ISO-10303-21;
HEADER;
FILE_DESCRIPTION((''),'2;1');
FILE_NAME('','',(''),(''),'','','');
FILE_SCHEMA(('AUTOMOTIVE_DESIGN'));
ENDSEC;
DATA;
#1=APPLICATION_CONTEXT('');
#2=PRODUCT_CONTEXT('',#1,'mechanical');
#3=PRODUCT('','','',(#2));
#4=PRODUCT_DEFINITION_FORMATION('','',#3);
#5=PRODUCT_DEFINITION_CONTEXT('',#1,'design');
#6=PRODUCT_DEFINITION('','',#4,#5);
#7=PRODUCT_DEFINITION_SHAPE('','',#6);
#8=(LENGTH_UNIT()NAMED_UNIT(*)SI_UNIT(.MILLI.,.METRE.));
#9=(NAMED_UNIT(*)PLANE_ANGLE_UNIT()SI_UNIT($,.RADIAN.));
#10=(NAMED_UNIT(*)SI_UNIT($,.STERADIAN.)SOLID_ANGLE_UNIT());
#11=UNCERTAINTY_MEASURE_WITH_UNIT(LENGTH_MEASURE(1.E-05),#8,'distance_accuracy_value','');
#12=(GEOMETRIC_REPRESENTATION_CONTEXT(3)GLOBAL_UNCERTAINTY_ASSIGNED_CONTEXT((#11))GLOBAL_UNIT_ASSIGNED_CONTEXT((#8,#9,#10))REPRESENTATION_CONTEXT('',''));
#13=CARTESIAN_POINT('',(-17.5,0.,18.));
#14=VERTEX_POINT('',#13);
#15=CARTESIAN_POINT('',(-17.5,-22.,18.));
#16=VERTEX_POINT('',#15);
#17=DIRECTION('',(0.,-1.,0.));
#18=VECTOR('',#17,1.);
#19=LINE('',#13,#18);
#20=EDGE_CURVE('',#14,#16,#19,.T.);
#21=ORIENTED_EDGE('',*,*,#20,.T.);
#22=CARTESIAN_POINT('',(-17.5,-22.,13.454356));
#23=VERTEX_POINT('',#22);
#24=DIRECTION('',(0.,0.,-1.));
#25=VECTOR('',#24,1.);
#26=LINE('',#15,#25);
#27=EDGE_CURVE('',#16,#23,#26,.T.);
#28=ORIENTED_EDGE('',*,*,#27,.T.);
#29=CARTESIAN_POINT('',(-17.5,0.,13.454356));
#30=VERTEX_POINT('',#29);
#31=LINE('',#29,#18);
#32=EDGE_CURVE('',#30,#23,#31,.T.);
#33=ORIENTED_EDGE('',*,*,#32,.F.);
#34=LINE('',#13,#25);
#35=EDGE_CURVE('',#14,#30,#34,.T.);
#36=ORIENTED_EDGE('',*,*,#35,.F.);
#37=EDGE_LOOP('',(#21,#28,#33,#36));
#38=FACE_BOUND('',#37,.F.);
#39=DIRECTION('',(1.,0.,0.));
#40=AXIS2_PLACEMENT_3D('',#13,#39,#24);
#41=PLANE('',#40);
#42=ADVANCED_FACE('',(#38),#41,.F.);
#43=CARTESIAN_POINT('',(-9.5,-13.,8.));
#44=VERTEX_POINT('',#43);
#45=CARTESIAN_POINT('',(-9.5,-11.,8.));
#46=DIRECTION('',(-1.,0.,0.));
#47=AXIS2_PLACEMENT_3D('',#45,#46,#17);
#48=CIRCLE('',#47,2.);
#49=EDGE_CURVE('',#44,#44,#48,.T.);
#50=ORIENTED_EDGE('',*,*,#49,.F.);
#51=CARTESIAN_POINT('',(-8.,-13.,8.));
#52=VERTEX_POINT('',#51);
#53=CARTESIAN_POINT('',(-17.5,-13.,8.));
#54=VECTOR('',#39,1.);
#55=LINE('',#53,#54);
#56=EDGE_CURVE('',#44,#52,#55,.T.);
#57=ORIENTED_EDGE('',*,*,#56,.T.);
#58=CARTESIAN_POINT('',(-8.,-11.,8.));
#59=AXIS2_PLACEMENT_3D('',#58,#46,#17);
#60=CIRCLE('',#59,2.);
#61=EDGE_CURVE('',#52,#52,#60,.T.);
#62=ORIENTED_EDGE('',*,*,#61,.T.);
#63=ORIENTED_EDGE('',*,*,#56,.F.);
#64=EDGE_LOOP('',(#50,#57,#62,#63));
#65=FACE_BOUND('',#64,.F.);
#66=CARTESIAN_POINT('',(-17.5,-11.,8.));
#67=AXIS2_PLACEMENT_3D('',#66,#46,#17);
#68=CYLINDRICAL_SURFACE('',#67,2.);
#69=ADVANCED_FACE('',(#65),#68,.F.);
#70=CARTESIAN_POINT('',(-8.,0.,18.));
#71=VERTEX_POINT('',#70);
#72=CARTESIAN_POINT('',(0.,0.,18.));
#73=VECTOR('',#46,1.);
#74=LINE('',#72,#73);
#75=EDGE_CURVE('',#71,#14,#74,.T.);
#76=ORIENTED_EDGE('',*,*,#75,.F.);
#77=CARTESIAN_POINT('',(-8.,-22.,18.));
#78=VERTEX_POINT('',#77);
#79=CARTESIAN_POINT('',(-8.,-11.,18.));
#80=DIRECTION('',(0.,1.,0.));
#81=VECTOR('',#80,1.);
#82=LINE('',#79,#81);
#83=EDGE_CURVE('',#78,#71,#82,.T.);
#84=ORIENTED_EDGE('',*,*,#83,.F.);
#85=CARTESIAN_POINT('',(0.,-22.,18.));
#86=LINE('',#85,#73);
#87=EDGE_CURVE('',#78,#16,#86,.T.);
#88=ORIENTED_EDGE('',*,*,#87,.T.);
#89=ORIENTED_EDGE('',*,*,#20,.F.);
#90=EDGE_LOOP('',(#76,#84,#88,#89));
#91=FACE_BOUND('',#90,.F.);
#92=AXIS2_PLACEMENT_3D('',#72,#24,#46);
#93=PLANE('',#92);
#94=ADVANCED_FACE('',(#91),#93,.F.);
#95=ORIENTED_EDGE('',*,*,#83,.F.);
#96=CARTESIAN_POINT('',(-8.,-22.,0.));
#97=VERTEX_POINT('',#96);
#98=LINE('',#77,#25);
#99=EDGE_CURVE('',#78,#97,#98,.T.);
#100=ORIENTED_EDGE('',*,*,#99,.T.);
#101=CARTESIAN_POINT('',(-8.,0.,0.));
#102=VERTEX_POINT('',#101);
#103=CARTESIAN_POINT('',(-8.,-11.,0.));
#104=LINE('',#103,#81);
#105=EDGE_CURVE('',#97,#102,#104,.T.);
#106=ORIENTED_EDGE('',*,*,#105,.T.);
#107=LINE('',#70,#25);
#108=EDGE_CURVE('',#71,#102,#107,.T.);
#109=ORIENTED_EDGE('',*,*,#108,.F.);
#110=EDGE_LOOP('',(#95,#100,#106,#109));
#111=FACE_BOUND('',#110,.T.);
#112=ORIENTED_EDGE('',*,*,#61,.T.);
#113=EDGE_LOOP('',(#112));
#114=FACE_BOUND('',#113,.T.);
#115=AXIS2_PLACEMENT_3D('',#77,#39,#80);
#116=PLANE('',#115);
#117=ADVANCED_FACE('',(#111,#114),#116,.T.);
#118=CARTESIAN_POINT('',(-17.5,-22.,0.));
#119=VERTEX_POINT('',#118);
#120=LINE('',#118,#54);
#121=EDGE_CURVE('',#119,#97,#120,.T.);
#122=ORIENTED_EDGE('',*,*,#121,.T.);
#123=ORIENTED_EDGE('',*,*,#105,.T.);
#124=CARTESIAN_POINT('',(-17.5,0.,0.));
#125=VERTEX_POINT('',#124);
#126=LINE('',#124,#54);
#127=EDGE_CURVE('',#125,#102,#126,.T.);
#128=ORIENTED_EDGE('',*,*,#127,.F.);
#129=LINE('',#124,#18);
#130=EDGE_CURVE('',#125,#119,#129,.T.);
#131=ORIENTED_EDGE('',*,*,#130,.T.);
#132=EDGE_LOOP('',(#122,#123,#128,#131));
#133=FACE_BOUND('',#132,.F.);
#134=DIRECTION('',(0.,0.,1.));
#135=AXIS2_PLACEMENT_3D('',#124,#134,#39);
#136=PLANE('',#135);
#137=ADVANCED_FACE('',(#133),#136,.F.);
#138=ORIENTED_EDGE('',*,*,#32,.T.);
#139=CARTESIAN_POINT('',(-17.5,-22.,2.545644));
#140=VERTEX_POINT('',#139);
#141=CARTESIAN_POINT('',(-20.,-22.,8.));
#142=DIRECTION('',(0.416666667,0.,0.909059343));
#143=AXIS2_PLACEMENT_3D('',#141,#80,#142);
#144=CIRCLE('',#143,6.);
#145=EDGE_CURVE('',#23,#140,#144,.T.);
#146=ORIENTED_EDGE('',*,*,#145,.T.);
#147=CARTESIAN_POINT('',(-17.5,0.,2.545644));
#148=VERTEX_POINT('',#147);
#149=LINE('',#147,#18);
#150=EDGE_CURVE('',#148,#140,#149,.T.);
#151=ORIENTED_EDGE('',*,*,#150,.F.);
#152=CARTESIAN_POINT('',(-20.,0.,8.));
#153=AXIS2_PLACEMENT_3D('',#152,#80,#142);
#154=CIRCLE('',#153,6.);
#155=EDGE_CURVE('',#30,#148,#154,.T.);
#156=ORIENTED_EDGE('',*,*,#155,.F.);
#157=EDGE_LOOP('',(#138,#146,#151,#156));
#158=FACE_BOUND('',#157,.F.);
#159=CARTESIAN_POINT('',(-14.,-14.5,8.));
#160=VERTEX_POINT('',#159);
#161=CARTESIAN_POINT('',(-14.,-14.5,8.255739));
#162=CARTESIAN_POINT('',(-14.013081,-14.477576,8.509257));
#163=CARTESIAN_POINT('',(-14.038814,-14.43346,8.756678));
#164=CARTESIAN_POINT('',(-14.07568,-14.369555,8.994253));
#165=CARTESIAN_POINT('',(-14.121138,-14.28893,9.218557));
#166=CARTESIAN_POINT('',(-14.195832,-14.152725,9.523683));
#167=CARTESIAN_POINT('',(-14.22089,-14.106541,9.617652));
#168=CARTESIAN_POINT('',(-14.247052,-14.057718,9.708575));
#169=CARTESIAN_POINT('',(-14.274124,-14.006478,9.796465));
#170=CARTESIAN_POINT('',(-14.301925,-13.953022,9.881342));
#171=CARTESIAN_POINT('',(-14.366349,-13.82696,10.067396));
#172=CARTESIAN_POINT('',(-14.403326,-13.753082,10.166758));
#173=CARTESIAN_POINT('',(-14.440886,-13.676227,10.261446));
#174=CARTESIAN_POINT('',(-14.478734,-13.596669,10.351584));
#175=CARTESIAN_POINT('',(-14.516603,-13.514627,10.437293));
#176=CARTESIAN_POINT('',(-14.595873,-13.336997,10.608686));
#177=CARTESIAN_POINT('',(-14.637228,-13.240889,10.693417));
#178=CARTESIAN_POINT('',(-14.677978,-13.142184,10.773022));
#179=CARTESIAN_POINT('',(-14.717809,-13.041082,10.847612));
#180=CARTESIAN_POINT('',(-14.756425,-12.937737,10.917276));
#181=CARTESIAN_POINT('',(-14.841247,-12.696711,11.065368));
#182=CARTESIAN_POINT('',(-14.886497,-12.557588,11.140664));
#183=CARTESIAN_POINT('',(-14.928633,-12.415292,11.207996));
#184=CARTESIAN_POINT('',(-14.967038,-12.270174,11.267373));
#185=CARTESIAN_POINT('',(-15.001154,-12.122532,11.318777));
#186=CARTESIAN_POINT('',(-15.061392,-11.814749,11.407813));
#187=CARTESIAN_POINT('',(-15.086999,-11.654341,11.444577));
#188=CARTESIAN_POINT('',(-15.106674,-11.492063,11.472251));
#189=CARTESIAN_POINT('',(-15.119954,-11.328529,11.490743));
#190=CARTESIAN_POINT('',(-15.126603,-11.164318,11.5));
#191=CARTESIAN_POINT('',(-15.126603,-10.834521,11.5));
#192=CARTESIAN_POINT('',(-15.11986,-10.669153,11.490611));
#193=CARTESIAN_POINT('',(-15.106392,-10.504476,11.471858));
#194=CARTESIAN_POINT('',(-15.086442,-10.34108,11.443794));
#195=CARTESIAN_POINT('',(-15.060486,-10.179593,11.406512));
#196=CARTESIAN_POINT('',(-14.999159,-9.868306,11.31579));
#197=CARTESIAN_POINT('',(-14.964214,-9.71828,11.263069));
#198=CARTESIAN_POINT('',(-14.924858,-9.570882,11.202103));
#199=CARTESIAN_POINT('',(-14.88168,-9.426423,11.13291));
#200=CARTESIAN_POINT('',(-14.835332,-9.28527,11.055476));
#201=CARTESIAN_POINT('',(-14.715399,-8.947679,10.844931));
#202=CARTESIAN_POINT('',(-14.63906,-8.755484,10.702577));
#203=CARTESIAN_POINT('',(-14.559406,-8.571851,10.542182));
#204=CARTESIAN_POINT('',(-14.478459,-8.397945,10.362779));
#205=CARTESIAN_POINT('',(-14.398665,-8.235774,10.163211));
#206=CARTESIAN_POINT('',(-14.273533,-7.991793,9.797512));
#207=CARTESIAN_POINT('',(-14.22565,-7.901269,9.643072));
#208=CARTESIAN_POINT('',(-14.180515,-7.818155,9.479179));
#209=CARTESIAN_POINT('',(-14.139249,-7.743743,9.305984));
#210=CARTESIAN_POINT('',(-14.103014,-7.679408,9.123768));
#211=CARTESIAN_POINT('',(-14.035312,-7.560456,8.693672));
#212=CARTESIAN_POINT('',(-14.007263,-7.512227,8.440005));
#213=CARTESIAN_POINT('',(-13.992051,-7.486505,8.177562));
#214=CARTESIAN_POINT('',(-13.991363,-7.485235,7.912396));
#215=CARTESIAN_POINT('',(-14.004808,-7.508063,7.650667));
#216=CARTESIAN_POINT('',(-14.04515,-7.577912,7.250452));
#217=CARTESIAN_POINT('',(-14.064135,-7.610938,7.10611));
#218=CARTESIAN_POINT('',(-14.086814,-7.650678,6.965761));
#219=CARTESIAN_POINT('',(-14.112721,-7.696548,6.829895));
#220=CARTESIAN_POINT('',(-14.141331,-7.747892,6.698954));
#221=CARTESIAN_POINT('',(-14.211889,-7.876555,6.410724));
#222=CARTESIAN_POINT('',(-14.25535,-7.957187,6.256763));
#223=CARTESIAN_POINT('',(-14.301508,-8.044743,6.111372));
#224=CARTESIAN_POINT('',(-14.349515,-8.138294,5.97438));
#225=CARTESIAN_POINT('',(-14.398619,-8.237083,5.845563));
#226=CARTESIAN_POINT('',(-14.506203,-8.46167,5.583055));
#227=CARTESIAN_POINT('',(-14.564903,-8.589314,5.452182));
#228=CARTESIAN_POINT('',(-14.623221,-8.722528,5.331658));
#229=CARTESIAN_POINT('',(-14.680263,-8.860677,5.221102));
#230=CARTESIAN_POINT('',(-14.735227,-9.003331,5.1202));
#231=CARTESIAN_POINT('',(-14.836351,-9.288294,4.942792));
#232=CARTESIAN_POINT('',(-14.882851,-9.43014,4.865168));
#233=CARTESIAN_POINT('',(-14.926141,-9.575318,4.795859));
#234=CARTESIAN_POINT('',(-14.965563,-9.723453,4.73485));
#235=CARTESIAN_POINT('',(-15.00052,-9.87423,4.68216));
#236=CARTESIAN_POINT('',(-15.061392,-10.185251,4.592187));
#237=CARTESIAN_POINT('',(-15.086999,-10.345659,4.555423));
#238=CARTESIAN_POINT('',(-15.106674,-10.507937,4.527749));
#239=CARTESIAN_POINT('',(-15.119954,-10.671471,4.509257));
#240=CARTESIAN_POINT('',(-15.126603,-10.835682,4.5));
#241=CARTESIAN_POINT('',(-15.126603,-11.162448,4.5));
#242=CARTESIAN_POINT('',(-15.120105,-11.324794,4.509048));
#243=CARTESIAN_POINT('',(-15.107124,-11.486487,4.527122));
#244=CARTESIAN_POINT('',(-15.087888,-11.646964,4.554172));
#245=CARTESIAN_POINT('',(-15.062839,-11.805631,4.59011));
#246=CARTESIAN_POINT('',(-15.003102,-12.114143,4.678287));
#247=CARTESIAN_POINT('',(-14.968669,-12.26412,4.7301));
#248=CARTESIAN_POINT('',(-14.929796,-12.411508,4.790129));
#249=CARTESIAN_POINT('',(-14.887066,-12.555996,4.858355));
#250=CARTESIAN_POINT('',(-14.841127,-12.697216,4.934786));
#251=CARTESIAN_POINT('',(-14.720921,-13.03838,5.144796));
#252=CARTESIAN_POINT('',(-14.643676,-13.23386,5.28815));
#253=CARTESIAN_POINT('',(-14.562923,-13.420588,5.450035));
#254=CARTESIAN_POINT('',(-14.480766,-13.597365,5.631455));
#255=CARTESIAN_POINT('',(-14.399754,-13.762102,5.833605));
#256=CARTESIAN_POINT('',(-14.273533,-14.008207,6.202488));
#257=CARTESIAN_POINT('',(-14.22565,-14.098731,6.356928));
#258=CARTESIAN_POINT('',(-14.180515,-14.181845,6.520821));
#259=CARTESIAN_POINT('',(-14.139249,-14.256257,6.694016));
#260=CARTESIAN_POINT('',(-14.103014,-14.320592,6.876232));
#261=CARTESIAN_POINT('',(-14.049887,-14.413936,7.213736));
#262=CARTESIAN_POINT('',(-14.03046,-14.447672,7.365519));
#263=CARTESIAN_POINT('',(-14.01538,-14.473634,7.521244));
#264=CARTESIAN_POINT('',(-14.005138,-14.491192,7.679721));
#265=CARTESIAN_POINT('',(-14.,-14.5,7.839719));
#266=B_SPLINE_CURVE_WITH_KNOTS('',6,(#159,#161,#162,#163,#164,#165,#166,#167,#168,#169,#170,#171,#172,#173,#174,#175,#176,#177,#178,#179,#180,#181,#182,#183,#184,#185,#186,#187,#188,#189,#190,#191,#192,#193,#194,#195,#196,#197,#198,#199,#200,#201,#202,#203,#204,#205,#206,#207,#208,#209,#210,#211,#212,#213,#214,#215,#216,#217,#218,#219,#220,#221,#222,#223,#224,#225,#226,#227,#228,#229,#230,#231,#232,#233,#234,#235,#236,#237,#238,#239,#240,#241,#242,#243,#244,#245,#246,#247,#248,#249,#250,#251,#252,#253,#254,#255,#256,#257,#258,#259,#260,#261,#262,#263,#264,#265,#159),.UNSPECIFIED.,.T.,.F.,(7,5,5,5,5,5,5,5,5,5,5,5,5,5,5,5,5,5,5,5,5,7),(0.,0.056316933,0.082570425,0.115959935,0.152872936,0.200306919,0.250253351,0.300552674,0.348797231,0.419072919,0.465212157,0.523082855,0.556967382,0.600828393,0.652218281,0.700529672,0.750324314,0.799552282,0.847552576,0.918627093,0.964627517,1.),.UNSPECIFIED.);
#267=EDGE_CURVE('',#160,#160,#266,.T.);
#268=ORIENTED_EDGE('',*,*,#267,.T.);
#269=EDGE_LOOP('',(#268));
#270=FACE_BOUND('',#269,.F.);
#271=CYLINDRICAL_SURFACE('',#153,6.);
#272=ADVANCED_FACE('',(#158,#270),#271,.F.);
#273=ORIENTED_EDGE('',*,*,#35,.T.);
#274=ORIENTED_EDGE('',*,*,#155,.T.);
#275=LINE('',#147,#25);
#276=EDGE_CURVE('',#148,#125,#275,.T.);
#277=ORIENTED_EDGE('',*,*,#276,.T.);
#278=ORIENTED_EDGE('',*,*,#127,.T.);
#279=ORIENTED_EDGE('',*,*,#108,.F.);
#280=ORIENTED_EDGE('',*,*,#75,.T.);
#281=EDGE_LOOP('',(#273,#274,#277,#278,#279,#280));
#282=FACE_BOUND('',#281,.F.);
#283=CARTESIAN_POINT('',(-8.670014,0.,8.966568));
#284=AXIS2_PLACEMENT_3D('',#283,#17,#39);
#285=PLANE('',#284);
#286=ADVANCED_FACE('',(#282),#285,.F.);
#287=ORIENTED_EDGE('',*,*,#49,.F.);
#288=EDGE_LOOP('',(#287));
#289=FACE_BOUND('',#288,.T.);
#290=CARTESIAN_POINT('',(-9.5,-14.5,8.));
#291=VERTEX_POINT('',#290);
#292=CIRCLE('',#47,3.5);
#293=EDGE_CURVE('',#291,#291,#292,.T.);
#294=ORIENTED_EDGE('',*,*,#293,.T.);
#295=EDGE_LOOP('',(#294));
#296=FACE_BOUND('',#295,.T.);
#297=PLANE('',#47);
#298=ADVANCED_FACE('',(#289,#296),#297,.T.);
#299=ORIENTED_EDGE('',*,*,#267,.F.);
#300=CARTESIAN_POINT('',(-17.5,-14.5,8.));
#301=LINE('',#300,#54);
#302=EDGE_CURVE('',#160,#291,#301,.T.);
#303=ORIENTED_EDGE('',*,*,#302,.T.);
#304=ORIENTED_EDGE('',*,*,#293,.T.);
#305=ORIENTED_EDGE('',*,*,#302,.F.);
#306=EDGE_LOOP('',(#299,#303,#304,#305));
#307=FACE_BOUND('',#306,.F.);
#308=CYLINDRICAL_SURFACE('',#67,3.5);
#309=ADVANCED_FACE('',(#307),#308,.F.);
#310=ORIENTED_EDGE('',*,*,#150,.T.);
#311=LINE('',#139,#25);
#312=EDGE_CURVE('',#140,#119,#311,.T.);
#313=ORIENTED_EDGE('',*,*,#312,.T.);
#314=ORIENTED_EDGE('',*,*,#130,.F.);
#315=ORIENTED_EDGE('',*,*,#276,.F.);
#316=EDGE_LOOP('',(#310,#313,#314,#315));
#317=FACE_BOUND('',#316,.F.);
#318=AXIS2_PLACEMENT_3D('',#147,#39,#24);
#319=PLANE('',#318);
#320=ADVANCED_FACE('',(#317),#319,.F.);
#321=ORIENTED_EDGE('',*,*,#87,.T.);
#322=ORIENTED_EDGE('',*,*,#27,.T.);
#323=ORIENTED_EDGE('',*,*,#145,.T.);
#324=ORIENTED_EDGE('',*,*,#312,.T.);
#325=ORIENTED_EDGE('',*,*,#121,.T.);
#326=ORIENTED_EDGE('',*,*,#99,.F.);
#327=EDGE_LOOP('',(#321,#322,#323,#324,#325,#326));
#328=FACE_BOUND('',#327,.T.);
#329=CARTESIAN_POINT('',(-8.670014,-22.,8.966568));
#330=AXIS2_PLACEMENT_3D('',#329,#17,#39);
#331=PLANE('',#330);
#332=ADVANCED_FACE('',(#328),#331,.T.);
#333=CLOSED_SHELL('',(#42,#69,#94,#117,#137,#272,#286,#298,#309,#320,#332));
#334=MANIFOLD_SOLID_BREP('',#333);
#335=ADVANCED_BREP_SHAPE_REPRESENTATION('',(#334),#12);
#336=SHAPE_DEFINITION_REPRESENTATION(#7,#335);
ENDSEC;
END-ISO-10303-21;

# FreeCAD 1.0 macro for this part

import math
import FreeCAD as App
import Part
import Sketcher
from FreeCAD import Vector
Q = App.Units.Quantity

doc = App.newDocument("Part")
body = doc.addObject("PartDesign::Body", "Body")

sketch1 = body.newObject("Sketcher::SketchObject", "Sketch")
sketch1.AttachmentSupport = (doc.getObject("XZ_Plane"), [""])
sketch1.MapMode = "FlatFace"
sketch1.addGeometry([
    Part.LineSegment(Vector(0, 18, 0), Vector(-17.5, 18, 0)),
    Part.LineSegment(Vector(-17.5, 18, 0), Vector(-17.5, 13.5, 0)),
    Part.ArcOfCircle(Part.Circle(Vector(-20, 8, 0), Vector(0, 0, 1), 6), math.radians(-65), math.radians(65)),
    Part.LineSegment(Vector(-17.5, 2.5, 0), Vector(-17.5, 0, 0)),
    Part.LineSegment(Vector(-17.5, 0, 0), Vector(0, 0, 0)),
    Part.LineSegment(Vector(0, 0, 0), Vector(0, 18, 0)),
], False)
sketch1.addConstraint([
    Sketcher.Constraint("Coincident", 0, 2, 1, 1),
    Sketcher.Constraint("Coincident", 1, 2, 2, 2),
    Sketcher.Constraint("Coincident", 2, 1, 3, 1),
    Sketcher.Constraint("Coincident", 3, 2, 4, 1),
    Sketcher.Constraint("Coincident", 4, 2, 5, 1),
    Sketcher.Constraint("Coincident", 5, 2, 0, 1),
    Sketcher.Constraint("Horizontal", 0),
    Sketcher.Constraint("Vertical", 1),
    Sketcher.Constraint("Vertical", 3),
    Sketcher.Constraint("Horizontal", 4),
    Sketcher.Constraint("Vertical", 5),
    Sketcher.Constraint("Coincident", 4, 2, -1, 1),
    Sketcher.Constraint("Vertical", 1, 2, 2, 1),
    Sketcher.Constraint("Radius", 2, Q("6 mm")),
    Sketcher.Constraint("DistanceY", 5, 1, 5, 2, Q("18 mm")),
    Sketcher.Constraint("DistanceX", 0, 2, 0, 1, Q("17.5 mm")),
    Sketcher.Constraint("DistanceX", 2, 3, -1, 1, Q("20 mm")),
    Sketcher.Constraint("DistanceY", -1, 1, 2, 3, Q("8 mm")),
])
pad1 = body.newObject("PartDesign::Pad", "Pad")
pad1.Profile = sketch1
pad1.Length = 22

sketch2 = body.newObject("Sketcher::SketchObject", "Sketch001")
sketch2.AttachmentSupport = (doc.getObject("YZ_Plane"), [""])
sketch2.MapMode = "FlatFace"
sketch2.AttachmentOffset = App.Placement(Vector(0, 0, -17.5), App.Rotation())
sketch2.addGeometry(Part.Circle(Vector(-11, 8, 0), Vector(0, 0, 1), 2), False)
sketch2.addConstraint([
    Sketcher.Constraint("Diameter", 0, Q("4 mm")),
    Sketcher.Constraint("DistanceX", 0, 3, -1, 1, Q("11 mm")),
    Sketcher.Constraint("DistanceY", -1, 1, 0, 3, Q("8 mm")),
])
pocket1 = body.newObject("PartDesign::Pocket", "Pocket")
pocket1.Profile = sketch2
pocket1.Length = 25
pocket1.Reversed = True

sketch3 = body.newObject("Sketcher::SketchObject", "Sketch002")
sketch3.AttachmentSupport = (doc.getObject("YZ_Plane"), [""])
sketch3.MapMode = "FlatFace"
sketch3.AttachmentOffset = App.Placement(Vector(0, 0, -17.5), App.Rotation())
sketch3.addGeometry(Part.Circle(Vector(-11, 8, 0), Vector(0, 0, 1), 3.5), False)
sketch3.addConstraint([
    Sketcher.Constraint("Diameter", 0, Q("7 mm")),
    Sketcher.Constraint("DistanceX", 0, 3, -1, 1, Q("11 mm")),
    Sketcher.Constraint("DistanceY", -1, 1, 0, 3, Q("8 mm")),
])
pocket2 = body.newObject("PartDesign::Pocket", "Pocket001")
pocket2.Profile = sketch3
pocket2.Length = 8
pocket2.Reversed = True

sketch4 = body.newObject("Sketcher::SketchObject", "Sketch003")
sketch4.AttachmentSupport = (doc.getObject("XY_Plane"), [""])
sketch4.MapMode = "FlatFace"
sketch4.AttachmentOffset = App.Placement(Vector(0, 0, 18), App.Rotation())
sketch4.addGeometry([
    Part.LineSegment(Vector(-8, 0, 0), Vector(-8, -22, 0)),
    Part.LineSegment(Vector(-8, -22, 0), Vector(0, -22, 0)),
    Part.LineSegment(Vector(0, -22, 0), Vector(0, 0, 0)),
    Part.LineSegment(Vector(0, 0, 0), Vector(-8, 0, 0)),
], False)
sketch4.addConstraint([
    Sketcher.Constraint("Coincident", 0, 2, 1, 1),
    Sketcher.Constraint("Coincident", 1, 2, 2, 1),
    Sketcher.Constraint("Coincident", 2, 2, 3, 1),
    Sketcher.Constraint("Coincident", 3, 2, 0, 1),
    Sketcher.Constraint("Vertical", 0),
    Sketcher.Constraint("Horizontal", 1),
    Sketcher.Constraint("Vertical", 2),
    Sketcher.Constraint("Horizontal", 3),
    Sketcher.Constraint("Coincident", 2, 2, -1, 1),
    Sketcher.Constraint("DistanceX", 1, 1, 1, 2, Q("8 mm")),
    Sketcher.Constraint("DistanceY", 0, 2, 0, 1, Q("22 mm")),
])
pocket3 = body.newObject("PartDesign::Pocket", "Pocket002")
pocket3.Profile = sketch4
pocket3.Length = 25

doc.recompute()
